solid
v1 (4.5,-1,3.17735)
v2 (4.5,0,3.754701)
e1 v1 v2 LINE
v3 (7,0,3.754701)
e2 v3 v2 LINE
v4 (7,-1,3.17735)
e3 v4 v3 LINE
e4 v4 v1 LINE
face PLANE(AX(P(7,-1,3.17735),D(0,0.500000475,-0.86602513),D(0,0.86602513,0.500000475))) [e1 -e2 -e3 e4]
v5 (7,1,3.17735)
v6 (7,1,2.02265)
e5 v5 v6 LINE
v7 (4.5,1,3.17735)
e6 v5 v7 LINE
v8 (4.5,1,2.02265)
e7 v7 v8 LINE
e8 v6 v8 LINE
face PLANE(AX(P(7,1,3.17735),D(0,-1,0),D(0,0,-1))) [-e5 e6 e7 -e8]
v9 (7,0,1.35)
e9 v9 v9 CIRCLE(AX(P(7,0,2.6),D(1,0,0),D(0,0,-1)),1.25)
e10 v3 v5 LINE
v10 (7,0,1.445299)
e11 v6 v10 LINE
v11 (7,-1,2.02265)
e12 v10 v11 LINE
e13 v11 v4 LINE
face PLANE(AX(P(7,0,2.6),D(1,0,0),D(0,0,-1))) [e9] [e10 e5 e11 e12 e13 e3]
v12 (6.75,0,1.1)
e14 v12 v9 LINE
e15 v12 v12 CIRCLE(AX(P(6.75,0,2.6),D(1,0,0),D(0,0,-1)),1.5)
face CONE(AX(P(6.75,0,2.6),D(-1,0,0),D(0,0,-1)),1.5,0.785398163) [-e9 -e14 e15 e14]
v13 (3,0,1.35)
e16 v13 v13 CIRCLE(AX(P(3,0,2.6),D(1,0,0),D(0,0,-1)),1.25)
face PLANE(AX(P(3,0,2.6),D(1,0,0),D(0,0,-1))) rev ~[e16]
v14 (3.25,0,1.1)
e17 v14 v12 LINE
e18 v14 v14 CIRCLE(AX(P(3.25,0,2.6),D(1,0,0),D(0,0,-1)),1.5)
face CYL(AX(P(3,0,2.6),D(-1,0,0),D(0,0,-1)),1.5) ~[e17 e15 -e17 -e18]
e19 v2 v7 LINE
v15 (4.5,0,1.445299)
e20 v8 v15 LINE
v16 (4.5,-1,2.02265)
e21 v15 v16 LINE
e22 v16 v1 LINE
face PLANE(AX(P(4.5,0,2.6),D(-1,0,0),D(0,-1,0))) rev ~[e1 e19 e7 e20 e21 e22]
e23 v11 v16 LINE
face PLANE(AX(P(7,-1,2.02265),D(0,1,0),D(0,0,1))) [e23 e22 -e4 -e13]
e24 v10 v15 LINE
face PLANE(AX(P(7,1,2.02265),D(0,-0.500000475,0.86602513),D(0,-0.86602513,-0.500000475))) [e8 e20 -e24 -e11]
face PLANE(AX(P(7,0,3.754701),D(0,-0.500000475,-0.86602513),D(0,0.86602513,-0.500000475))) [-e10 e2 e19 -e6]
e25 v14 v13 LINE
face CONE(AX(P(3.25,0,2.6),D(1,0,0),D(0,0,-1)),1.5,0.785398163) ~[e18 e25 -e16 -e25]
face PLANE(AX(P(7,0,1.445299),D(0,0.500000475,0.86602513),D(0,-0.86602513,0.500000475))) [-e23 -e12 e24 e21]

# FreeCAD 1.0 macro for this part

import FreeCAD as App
import Part
import Sketcher

V = App.Vector
Q = App.Units.Quantity


def edges_at(feature, points):
    """Names of the edges that pass closest to the given points."""
    edges = feature.Shape.Edges
    near = lambda p: min(range(len(edges)), key=lambda i: edges[i].distToShape(Part.Vertex(*p))[0])
    return sorted({f"Edge{near(p) + 1}" for p in points})


def add_polygon(sketch, points):
    """Adds a closed chain of lines whose ends are joined by coincident constraints."""
    first, n = sketch.GeometryCount, len(points)
    for a, b in zip(points, points[1:] + points[:1]):
        sketch.addGeometry(Part.LineSegment(App.Vector(*a, 0), App.Vector(*b, 0)), False)
    for i in range(n):
        sketch.addConstraint(Sketcher.Constraint("Coincident", first + i, 2, first + (i + 1) % n, 1))

doc = App.newDocument("Part")
params = doc.addObject("Spreadsheet::Sheet", "Params")
for row, (alias, value) in enumerate([
    ("sketch1_diameter", "3 mm"),
    ("pad1_length", "4 mm"),
    ("chamfer_size", "0.25 mm"),
    ("pocket1_length", "2.5 mm"),
], start=1):
    params.set(f"A{row}", alias)
    params.set(f"B{row}", "=" + value)
    params.setAlias(f"B{row}", alias)

body = doc.addObject("PartDesign::Body", "Body")

# Sketch on XY plane
sketch1 = doc.addObject("Sketcher::SketchObject", "Sketch")
body.addObject(sketch1)
sketch1.AttachmentSupport = (doc.XY_Plane, [""])
sketch1.MapMode = "FlatFace"
sketch1.addGeometry(Part.Circle(V(0, 0, 0), V(0, 0, 1), 1.5), False)
sketch1.addConstraint([
    Sketcher.Constraint("Coincident", 0, 3, -1, 1),
    Sketcher.Constraint("Diameter", 0, Q("3 mm")),
])
sketch1.setExpression("Constraints[1]", "Params.sketch1_diameter")
pad1 = doc.addObject("PartDesign::Pad", "Pad")
body.addObject(pad1)
pad1.Profile = sketch1
pad1.setExpression("Length", "Params.pad1_length")
body2 = doc.addObject("PartDesign::Body", "Body001")
doc.recompute()

body.Placement = App.Placement(V(0, 0, 0), App.Rotation(V(0, 1, 0), 90))
boolean = doc.addObject("PartDesign::Boolean", "Boolean")
body2.addObject(boolean)
boolean.Type = "Fuse"
boolean.addObjects([body])
body3 = doc.addObject("PartDesign::Body", "Body002")
doc.recompute()

body2.Placement = App.Placement(V(3, 0, 2.6), App.Rotation(V(0, 0, 1), 0))
boolean2 = doc.addObject("PartDesign::Boolean", "Boolean001")
body3.addObject(boolean2)
boolean2.Type = "Fuse"
boolean2.addObjects([body2])
doc.recompute()

chamfer = doc.addObject("PartDesign::Chamfer", "Chamfer")
body3.addObject(chamfer)
chamfer.Base = (boolean2, edges_at(boolean2, [(7, 0, 4.1), (3, 0, 4.1)]))
chamfer.setExpression("Size", "Params.chamfer_size")

# Sketch on YZ plane
sketch2 = doc.addObject("Sketcher::SketchObject", "Sketch001")
body3.addObject(sketch2)
sketch2.AttachmentSupport = (doc.getObject("YZ_Plane002"), [""])
sketch2.MapMode = "FlatFace"
sketch2.AttachmentOffset = App.Placement(V(0, 0, 7), App.Rotation())
add_polygon(sketch2, [(0, 3.8), (-1, 3.2), (-1, 2), (0, 1.4), (1, 2), (1, 3.2)])  # lines 0-5
sketch2.addConstraint([
    Sketcher.Constraint("Vertical", 1),
    Sketcher.Constraint("Vertical", 4),
    Sketcher.Constraint("Symmetric", 1, 2, 3, 2, -2),
    Sketcher.Constraint("PointOnObject", 2, 2, -2),
    Sketcher.Constraint("PointOnObject", 5, 2, -2),
    Sketcher.Constraint("Parallel", 0, 3),
    Sketcher.Constraint("Parallel", 2, 5),
    Sketcher.Constraint("DistanceX", 0, 2, -1, 1, Q("1 mm")),
    Sketcher.Constraint("DistanceY", 1, 2, 1, 1, Q("1.1547 mm")),
    Sketcher.Constraint("Distance", 0, Q("1.154701 mm")),
    Sketcher.Constraint("DistanceY", -1, 1, 2, 2, Q("1.445299 mm")),
])
pocket1 = doc.addObject("PartDesign::Pocket", "Pocket")
body3.addObject(pocket1)
pocket1.Profile = sketch2
pocket1.setExpression("Length", "Params.pocket1_length")

doc.recompute()
